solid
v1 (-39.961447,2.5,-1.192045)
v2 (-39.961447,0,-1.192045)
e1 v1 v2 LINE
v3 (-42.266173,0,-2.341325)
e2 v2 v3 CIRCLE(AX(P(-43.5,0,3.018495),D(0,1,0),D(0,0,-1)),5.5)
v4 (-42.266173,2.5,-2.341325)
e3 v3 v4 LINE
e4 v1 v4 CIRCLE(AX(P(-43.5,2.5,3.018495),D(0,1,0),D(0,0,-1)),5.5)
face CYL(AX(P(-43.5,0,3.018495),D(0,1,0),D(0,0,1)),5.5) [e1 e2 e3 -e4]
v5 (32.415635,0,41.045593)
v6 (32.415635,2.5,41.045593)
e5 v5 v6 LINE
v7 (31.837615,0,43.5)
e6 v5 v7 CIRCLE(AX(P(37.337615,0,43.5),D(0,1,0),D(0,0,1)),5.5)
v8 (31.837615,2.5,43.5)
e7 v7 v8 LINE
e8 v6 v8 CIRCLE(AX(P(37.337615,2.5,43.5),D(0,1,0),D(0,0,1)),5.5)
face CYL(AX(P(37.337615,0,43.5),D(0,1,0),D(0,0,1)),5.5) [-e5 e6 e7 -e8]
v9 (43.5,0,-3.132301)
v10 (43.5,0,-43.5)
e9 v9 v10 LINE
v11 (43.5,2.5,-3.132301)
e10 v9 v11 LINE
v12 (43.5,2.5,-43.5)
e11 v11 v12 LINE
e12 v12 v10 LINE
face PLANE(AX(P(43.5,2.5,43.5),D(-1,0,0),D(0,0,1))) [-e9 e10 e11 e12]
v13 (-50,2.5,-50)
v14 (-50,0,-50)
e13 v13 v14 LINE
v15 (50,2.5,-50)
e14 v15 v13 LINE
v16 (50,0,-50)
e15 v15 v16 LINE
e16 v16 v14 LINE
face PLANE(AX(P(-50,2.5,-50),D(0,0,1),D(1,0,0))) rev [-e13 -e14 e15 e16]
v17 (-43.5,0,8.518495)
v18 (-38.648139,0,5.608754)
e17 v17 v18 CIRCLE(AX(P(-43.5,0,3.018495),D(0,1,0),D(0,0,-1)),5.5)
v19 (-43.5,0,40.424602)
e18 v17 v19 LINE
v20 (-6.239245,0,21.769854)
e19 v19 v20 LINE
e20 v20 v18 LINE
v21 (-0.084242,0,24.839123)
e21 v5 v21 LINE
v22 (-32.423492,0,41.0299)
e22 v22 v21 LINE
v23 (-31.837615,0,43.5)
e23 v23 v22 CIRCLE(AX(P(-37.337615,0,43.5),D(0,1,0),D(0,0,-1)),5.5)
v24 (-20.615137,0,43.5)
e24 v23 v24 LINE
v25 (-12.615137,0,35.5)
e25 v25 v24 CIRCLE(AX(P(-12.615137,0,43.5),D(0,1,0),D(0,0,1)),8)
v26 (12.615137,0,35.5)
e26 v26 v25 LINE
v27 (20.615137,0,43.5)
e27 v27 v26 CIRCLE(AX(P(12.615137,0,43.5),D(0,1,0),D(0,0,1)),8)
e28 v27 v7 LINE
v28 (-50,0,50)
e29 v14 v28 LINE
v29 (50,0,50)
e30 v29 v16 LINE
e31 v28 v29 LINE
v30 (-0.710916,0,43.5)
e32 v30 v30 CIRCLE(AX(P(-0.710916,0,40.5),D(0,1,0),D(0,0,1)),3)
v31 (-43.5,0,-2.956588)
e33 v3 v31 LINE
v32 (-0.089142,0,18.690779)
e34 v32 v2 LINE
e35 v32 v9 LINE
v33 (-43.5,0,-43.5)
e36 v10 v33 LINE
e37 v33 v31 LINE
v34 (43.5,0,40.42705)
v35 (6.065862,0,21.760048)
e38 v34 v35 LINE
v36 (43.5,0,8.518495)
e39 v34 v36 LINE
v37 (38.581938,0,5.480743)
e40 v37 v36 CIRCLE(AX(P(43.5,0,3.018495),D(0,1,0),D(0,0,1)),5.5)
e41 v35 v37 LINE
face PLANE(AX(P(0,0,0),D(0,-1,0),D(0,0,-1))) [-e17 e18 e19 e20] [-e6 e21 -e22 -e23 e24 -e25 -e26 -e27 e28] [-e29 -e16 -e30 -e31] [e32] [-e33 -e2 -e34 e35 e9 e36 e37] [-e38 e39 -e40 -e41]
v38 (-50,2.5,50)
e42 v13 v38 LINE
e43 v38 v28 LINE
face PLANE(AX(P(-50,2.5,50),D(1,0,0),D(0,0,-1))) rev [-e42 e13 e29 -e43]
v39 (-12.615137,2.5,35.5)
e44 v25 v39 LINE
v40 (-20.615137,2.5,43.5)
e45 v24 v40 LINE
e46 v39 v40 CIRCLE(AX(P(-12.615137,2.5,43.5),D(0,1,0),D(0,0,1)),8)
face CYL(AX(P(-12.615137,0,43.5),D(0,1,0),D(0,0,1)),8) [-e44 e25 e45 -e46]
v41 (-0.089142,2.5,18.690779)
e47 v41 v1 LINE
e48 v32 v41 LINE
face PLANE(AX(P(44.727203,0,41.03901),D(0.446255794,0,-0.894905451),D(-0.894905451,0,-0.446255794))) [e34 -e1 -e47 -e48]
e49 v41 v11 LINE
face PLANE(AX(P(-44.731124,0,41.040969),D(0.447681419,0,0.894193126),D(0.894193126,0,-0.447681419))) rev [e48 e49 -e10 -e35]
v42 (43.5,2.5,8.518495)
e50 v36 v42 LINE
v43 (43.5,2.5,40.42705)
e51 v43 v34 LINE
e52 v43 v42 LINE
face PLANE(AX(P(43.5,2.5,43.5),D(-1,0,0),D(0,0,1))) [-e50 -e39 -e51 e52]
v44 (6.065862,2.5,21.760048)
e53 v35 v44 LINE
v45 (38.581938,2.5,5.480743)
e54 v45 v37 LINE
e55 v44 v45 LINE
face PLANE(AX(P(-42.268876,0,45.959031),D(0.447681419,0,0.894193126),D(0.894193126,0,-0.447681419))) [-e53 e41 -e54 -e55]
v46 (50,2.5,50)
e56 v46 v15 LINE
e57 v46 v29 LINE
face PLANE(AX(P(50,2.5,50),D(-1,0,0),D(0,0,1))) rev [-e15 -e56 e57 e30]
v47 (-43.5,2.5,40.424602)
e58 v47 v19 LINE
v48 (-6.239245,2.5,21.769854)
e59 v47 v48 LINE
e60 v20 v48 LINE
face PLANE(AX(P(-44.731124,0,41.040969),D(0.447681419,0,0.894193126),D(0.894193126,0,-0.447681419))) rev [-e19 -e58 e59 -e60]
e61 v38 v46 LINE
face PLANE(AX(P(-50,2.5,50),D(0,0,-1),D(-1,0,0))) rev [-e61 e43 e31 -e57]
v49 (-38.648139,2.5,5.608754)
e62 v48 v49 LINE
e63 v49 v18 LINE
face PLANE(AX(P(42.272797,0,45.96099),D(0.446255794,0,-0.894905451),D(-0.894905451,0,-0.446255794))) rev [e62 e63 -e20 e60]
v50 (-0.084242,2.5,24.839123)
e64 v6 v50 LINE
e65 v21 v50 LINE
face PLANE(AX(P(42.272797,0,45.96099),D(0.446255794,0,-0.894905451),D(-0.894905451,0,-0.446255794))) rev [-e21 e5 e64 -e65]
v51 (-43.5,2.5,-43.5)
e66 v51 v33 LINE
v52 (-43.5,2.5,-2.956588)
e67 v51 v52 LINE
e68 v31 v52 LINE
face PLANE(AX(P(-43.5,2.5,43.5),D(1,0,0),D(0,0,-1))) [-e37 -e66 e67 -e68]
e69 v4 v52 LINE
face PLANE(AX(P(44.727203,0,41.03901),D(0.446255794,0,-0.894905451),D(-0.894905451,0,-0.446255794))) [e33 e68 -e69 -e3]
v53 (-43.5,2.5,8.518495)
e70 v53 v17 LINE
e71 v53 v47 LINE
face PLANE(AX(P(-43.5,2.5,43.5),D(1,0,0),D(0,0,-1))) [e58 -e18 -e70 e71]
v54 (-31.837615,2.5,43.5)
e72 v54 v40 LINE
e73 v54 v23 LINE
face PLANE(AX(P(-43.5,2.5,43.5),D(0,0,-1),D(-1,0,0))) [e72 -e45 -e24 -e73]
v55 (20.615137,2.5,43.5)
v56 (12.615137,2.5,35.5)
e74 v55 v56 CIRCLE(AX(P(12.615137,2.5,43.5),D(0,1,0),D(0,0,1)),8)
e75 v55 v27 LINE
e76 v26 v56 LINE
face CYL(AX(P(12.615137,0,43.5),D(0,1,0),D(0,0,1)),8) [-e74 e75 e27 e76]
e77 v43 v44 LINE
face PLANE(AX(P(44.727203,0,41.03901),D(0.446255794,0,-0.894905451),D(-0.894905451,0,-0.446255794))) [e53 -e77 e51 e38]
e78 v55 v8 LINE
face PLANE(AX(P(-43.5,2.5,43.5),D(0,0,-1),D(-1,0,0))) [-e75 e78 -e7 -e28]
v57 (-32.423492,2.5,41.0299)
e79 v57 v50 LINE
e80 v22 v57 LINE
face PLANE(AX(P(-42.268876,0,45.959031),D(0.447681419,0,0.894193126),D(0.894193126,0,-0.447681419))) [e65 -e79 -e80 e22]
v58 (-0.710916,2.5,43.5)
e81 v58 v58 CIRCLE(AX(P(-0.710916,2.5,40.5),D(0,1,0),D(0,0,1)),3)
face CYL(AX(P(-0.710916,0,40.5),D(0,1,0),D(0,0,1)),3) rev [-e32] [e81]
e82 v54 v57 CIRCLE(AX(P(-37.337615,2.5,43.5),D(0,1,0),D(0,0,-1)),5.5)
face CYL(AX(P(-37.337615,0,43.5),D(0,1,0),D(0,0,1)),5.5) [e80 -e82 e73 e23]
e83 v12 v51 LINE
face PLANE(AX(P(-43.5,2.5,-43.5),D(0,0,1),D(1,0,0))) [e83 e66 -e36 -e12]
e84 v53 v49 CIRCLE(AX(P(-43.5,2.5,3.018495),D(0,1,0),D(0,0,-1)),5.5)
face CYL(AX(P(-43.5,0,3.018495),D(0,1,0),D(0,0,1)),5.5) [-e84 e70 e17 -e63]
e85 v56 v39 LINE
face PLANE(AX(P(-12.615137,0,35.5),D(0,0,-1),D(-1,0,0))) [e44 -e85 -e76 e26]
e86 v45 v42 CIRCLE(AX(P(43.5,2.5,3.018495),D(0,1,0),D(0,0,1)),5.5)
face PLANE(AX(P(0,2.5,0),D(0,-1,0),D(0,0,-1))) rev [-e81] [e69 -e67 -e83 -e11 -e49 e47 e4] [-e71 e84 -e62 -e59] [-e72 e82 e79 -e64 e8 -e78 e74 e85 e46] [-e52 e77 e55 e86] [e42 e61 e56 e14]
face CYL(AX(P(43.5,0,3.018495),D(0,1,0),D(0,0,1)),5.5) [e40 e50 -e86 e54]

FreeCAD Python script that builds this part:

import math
import FreeCAD as App
import Part
import Sketcher
from FreeCAD import Vector

doc = App.newDocument("Part")
params = doc.addObject("Spreadsheet::Sheet", "Params")
for row, (alias, value) in enumerate([
    ("sketch1_width", "100 mm"),
    ("sketch1_width2", "87 mm"),
    ("pad1_length", "2.5 mm"),
    ("sketch2_radius", "8 mm"),
    ("pad2_length", "2.5 mm"),
    ("pocket1_length", "2.5 mm"),
    ("sketch4_diameter", "6 mm"),
    ("pocket2_length", "2.5 mm"),
    ("sketch5_length", "5.5 mm"),
    ("pad3_length", "2.5 mm"),
    ("sketch6_diameter", "11 mm"),
    ("pad4_length", "2.5 mm"),
], start=1):
    params.set(f"A{row}", alias)
    params.set(f"B{row}", "=" + value)
    params.setAlias(f"B{row}", alias)

body = doc.addObject("PartDesign::Body", "Body")

# Sketch on XZ plane
sketch1 = doc.addObject("Sketcher::SketchObject", "Sketch")
body.addObject(sketch1)
sketch1.AttachmentSupport = (doc.XZ_Plane, [""])
sketch1.MapMode = "FlatFace"
sketch1.addGeometry(Part.LineSegment(Vector(-50, -50, 0), Vector(-50, 50, 0)), False)
sketch1.addGeometry(Part.LineSegment(Vector(-50, 50, 0), Vector(50, 50, 0)), False)
sketch1.addGeometry(Part.LineSegment(Vector(50, 50, 0), Vector(50, -50, 0)), False)
sketch1.addGeometry(Part.LineSegment(Vector(50, -50, 0), Vector(-50, -50, 0)), False)
sketch1.addGeometry(Part.LineSegment(Vector(43.5, 43.5, 0), Vector(-43.5, 43.5, 0)), False)
sketch1.addGeometry(Part.LineSegment(Vector(-43.5, 43.5, 0), Vector(-43.5, -43.5, 0)), False)
sketch1.addGeometry(Part.LineSegment(Vector(-43.5, -43.5, 0), Vector(43.5, -43.5, 0)), False)
sketch1.addGeometry(Part.LineSegment(Vector(43.5, -43.5, 0), Vector(43.5, 43.5, 0)), False)
sketch1.addConstraint(Sketcher.Constraint("Coincident", 0, 2, 1, 1))
sketch1.addConstraint(Sketcher.Constraint("Coincident", 1, 2, 2, 1))
sketch1.addConstraint(Sketcher.Constraint("Coincident", 2, 2, 3, 1))
sketch1.addConstraint(Sketcher.Constraint("Coincident", 3, 2, 0, 1))
sketch1.addConstraint(Sketcher.Constraint("Coincident", 4, 2, 5, 1))
sketch1.addConstraint(Sketcher.Constraint("Coincident", 5, 2, 6, 1))
sketch1.addConstraint(Sketcher.Constraint("Coincident", 6, 2, 7, 1))
sketch1.addConstraint(Sketcher.Constraint("Coincident", 7, 2, 4, 1))
sketch1.addConstraint(Sketcher.Constraint("Vertical", 0))
sketch1.addConstraint(Sketcher.Constraint("Horizontal", 1))
sketch1.addConstraint(Sketcher.Constraint("Vertical", 2))
sketch1.addConstraint(Sketcher.Constraint("Horizontal", 3))
sketch1.addConstraint(Sketcher.Constraint("Horizontal", 4))
sketch1.addConstraint(Sketcher.Constraint("Vertical", 5))
sketch1.addConstraint(Sketcher.Constraint("Horizontal", 6))
sketch1.addConstraint(Sketcher.Constraint("Vertical", 7))
sketch1.addConstraint(Sketcher.Constraint("Symmetric", 0, 2, 2, 2, -1, 1))
sketch1.addConstraint(Sketcher.Constraint("Symmetric", 4, 2, 6, 2, -1, 1))
sketch1.addConstraint(Sketcher.Constraint("Equal", 3, 0))
sketch1.addConstraint(Sketcher.Constraint("Equal", 6, 5))
sketch1.addConstraint(Sketcher.Constraint("DistanceX", 1, 1, 1, 2, 100.0))
sketch1.addConstraint(Sketcher.Constraint("DistanceX", 4, 2, 4, 1, 87.0))
sketch1.setExpression("Constraints[20]", "Params.sketch1_width")
sketch1.setExpression("Constraints[21]", "Params.sketch1_width2")
pad1 = doc.addObject("PartDesign::Pad", "Pad")
body.addObject(pad1)
pad1.Profile = sketch1
pad1.setExpression("Length", "Params.pad1_length")
pad1.Reversed = True

# Sketch on XZ plane
sketch2 = doc.addObject("Sketcher::SketchObject", "Sketch001")
body.addObject(sketch2)
sketch2.AttachmentSupport = (doc.XZ_Plane, [""])
sketch2.MapMode = "FlatFace"
sketch2.AttachmentOffset = App.Placement(Vector(0, 0, -2.5), App.Rotation())
sketch2.addGeometry(Part.LineSegment(Vector(12.615137, 35.5, 0), Vector(-12.615137, 35.5, 0)), False)
sketch2.addGeometry(Part.ArcOfCircle(Part.Circle(Vector(-12.615137, 43.5, 0), Vector(0, 0, 1), 8), math.radians(90), math.radians(270)), False)
sketch2.addGeometry(Part.LineSegment(Vector(-12.615137, 51.5, 0), Vector(12.615137, 51.5, 0)), False)
sketch2.addGeometry(Part.ArcOfCircle(Part.Circle(Vector(12.615137, 43.5, 0), Vector(0, 0, 1), 8), math.radians(-90), math.radians(90)), False)
sketch2.addConstraint(Sketcher.Constraint("Tangent", 0, 2, 1, 2))
sketch2.addConstraint(Sketcher.Constraint("Tangent", 1, 1, 2, 1))
sketch2.addConstraint(Sketcher.Constraint("Tangent", 2, 2, 3, 2))
sketch2.addConstraint(Sketcher.Constraint("Tangent", 3, 1, 0, 1))
sketch2.addConstraint(Sketcher.Constraint("Horizontal", 0))
sketch2.addConstraint(Sketcher.Constraint("Horizontal", 2))
sketch2.addConstraint(Sketcher.Constraint("Radius", 1, 8.0))
sketch2.addConstraint(Sketcher.Constraint("DistanceY", -1, 1, 1, 3, 43.5))
sketch2.addConstraint(Sketcher.Constraint("DistanceX", 0, 2, 0, 1, 25.230274))
sketch2.addConstraint(Sketcher.Constraint("DistanceX", 1, 3, -1, 1, 12.615137))
sketch2.setExpression("Constraints[6]", "Params.sketch2_radius")
pad2 = doc.addObject("PartDesign::Pad", "Pad001")
body.addObject(pad2)
pad2.Profile = sketch2
pad2.setExpression("Length", "Params.pad2_length")

# Sketch on XZ plane
sketch3 = doc.addObject("Sketcher::SketchObject", "Sketch002")
body.addObject(sketch3)
sketch3.AttachmentSupport = (doc.XZ_Plane, [""])
sketch3.MapMode = "FlatFace"
sketch3.AttachmentOffset = App.Placement(Vector(0, 0, -2.5), App.Rotation())
sketch3.addGeometry(Part.LineSegment(Vector(-27.044883, 50, 0), Vector(-27.044883, 57.135478, 0)), False)
sketch3.addGeometry(Part.LineSegment(Vector(-27.044883, 57.135478, 0), Vector(25.239885, 57.135478, 0)), False)
sketch3.addGeometry(Part.LineSegment(Vector(25.239885, 57.135478, 0), Vector(25.239885, 50, 0)), False)
sketch3.addGeometry(Part.LineSegment(Vector(25.239885, 50, 0), Vector(-27.044883, 50, 0)), False)
sketch3.addConstraint(Sketcher.Constraint("Coincident", 0, 2, 1, 1))
sketch3.addConstraint(Sketcher.Constraint("Coincident", 1, 2, 2, 1))
sketch3.addConstraint(Sketcher.Constraint("Coincident", 2, 2, 3, 1))
sketch3.addConstraint(Sketcher.Constraint("Coincident", 3, 2, 0, 1))
sketch3.addConstraint(Sketcher.Constraint("Vertical", 0))
sketch3.addConstraint(Sketcher.Constraint("Horizontal", 1))
sketch3.addConstraint(Sketcher.Constraint("Vertical", 2))
sketch3.addConstraint(Sketcher.Constraint("Horizontal", 3))
sketch3.addConstraint(Sketcher.Constraint("DistanceY", -1, 1, 2, 2, 50.0))
sketch3.addConstraint(Sketcher.Constraint("DistanceY", 0, 1, 0, 2, 7.135478))
sketch3.addConstraint(Sketcher.Constraint("DistanceX", 1, 1, 1, 2, 52.284767))
sketch3.addConstraint(Sketcher.Constraint("DistanceX", 0, 2, -1, 1, 27.044883))
pocket1 = doc.addObject("PartDesign::Pocket", "Pocket")
body.addObject(pocket1)
pocket1.Profile = sketch3
pocket1.setExpression("Length", "Params.pocket1_length")
pocket1.Reversed = True

# Sketch on XZ plane
sketch4 = doc.addObject("Sketcher::SketchObject", "Sketch003")
body.addObject(sketch4)
sketch4.AttachmentSupport = (doc.XZ_Plane, [""])
sketch4.MapMode = "FlatFace"
sketch4.AttachmentOffset = App.Placement(Vector(0, 0, -2.5), App.Rotation())
sketch4.addGeometry(Part.Circle(Vector(-0.710916, 40.5, 0), Vector(0, 0, 1), 3), False)
sketch4.addConstraint(Sketcher.Constraint("Diameter", 0, 6.0))
sketch4.addConstraint(Sketcher.Constraint("DistanceY", -1, 1, 0, 3, 40.5))
sketch4.addConstraint(Sketcher.Constraint("DistanceX", 0, 3, -1, 1, 0.710916))
sketch4.setExpression("Constraints[0]", "Params.sketch4_diameter")
pocket2 = doc.addObject("PartDesign::Pocket", "Pocket001")
body.addObject(pocket2)
pocket2.Profile = sketch4
pocket2.setExpression("Length", "Params.pocket2_length")
pocket2.Reversed = True

# Sketch on XZ plane
sketch5 = doc.addObject("Sketcher::SketchObject", "Sketch004")
body.addObject(sketch5)
sketch5.AttachmentSupport = (doc.XZ_Plane, [""])
sketch5.MapMode = "FlatFace"
sketch5.AttachmentOffset = App.Placement(Vector(0, 0, -2.5), App.Rotation())
sketch5.addGeometry(Part.LineSegment(Vector(-44.731124, 41.040969, 0), Vector(-42.268876, 45.959031, 0)), False)
sketch5.addGeometry(Part.LineSegment(Vector(-42.268876, 45.959031, 0), Vector(-0.084242, 24.839123, 0)), False)
sketch5.addGeometry(Part.LineSegment(Vector(-0.084242, 24.839123, 0), Vector(42.272797, 45.96099, 0)), False)
sketch5.addGeometry(Part.LineSegment(Vector(42.272797, 45.96099, 0), Vector(44.727203, 41.03901, 0)), False)
sketch5.addGeometry(Part.LineSegment(Vector(44.727203, 41.03901, 0), Vector(6.065862, 21.760048, 0)), False)
sketch5.addGeometry(Part.LineSegment(Vector(6.065862, 21.760048, 0), Vector(48.231096, 0.649853, 0)), False)
sketch5.addGeometry(Part.LineSegment(Vector(48.231096, 0.649853, 0), Vector(45.768848, -4.268209, 0)), False)
sketch5.addGeometry(Part.LineSegment(Vector(45.768848, -4.268209, 0), Vector(-0.089142, 18.690779, 0)), False)
sketch5.addGeometry(Part.LineSegment(Vector(-0.089142, 18.690779, 0), Vector(-46.134207, -4.270168, 0)), False)
sketch5.addGeometry(Part.LineSegment(Vector(-46.134207, -4.270168, 0), Vector(-48.588614, 0.651812, 0)), False)
sketch5.addGeometry(Part.LineSegment(Vector(-48.588614, 0.651812, 0), Vector(-6.239245, 21.769854, 0)), False)
sketch5.addGeometry(Part.LineSegment(Vector(-6.239245, 21.769854, 0), Vector(-44.731124, 41.040969, 0)), False)
sketch5.addConstraint(Sketcher.Constraint("Coincident", 0, 2, 1, 1))
sketch5.addConstraint(Sketcher.Constraint("Coincident", 1, 2, 2, 1))
sketch5.addConstraint(Sketcher.Constraint("Coincident", 2, 2, 3, 1))
sketch5.addConstraint(Sketcher.Constraint("Coincident", 3, 2, 4, 1))
sketch5.addConstraint(Sketcher.Constraint("Coincident", 4, 2, 5, 1))
sketch5.addConstraint(Sketcher.Constraint("Coincident", 5, 2, 6, 1))
sketch5.addConstraint(Sketcher.Constraint("Coincident", 6, 2, 7, 1))
sketch5.addConstraint(Sketcher.Constraint("Coincident", 7, 2, 8, 1))
sketch5.addConstraint(Sketcher.Constraint("Coincident", 8, 2, 9, 1))
sketch5.addConstraint(Sketcher.Constraint("Coincident", 9, 2, 10, 1))
sketch5.addConstraint(Sketcher.Constraint("Coincident", 10, 2, 11, 1))
sketch5.addConstraint(Sketcher.Constraint("Coincident", 11, 2, 0, 1))
sketch5.addConstraint(Sketcher.Constraint("Perpendicular", 0, 1))
sketch5.addConstraint(Sketcher.Constraint("Perpendicular", 2, 3))
sketch5.addConstraint(Sketcher.Constraint("Perpendicular", 3, 4))
sketch5.addConstraint(Sketcher.Constraint("Parallel", 1, 5))
sketch5.addConstraint(Sketcher.Constraint("Perpendicular", 5, 6))
sketch5.addConstraint(Sketcher.Constraint("Perpendicular", 6, 7))
sketch5.addConstraint(Sketcher.Constraint("Parallel", 4, 8))
sketch5.addConstraint(Sketcher.Constraint("Perpendicular", 8, 9))
sketch5.addConstraint(Sketcher.Constraint("Perpendicular", 9, 10))
sketch5.addConstraint(Sketcher.Constraint("Parallel", 7, 11))
sketch5.addConstraint(Sketcher.Constraint("Equal", 0, 3))
sketch5.addConstraint(Sketcher.Constraint("Equal", 3, 6))
sketch5.addConstraint(Sketcher.Constraint("Equal", 6, 9))
sketch5.addConstraint(Sketcher.Constraint("Distance", 0, 5.5))
sketch5.addConstraint(Sketcher.Constraint("Distance", 1, 47.1762))
sketch5.addConstraint(Sketcher.Constraint("Distance", 2, 47.331301))
sketch5.addConstraint(Sketcher.Constraint("DistanceX", 2, 2, 5, 2, 5.958299))
sketch5.addConstraint(Sketcher.Constraint("DistanceY", 6, 2, 2, 2, 50.229199))
sketch5.addConstraint(Sketcher.Constraint("DistanceX", 7, 2, 1, 2, 0.004899))
sketch5.addConstraint(Sketcher.Constraint("DistanceY", 8, 2, 0, 2, 50.229199))
sketch5.addConstraint(Sketcher.Constraint("Distance", 7, 51.284212))
sketch5.addConstraint(Sketcher.Constraint("Distance", 10, 47.322729))
sketch5.addConstraint(Sketcher.Constraint("DistanceY", -1, 1, 0, 2, 45.959031))
sketch5.addConstraint(Sketcher.Constraint("DistanceX", -1, 1, 4, 2, 6.065862))
sketch5.setExpression("Constraints[25]", "Params.sketch5_length")
pad3 = doc.addObject("PartDesign::Pad", "Pad002")
body.addObject(pad3)
pad3.Profile = sketch5
pad3.setExpression("Length", "Params.pad3_length")

# Sketch on XZ plane
sketch6 = doc.addObject("Sketcher::SketchObject", "Sketch005")
body.addObject(sketch6)
sketch6.AttachmentSupport = (doc.XZ_Plane, [""])
sketch6.MapMode = "FlatFace"
sketch6.AttachmentOffset = App.Placement(Vector(0, 0, -2.5), App.Rotation())
sketch6.addGeometry(Part.Circle(Vector(37.337615, 43.5, 0), Vector(0, 0, 1), 5.5), False)
sketch6.addGeometry(Part.Circle(Vector(43.5, 3.018495, 0), Vector(0, 0, 1), 5.5), False)
sketch6.addGeometry(Part.Circle(Vector(-37.337615, 43.5, 0), Vector(0, 0, 1), 5.5), False)
sketch6.addGeometry(Part.Circle(Vector(-43.5, 3.018495, 0), Vector(0, 0, 1), 5.5), False)
sketch6.addConstraint(Sketcher.Constraint("Equal", 0, 1))
sketch6.addConstraint(Sketcher.Constraint("Equal", 1, 2))
sketch6.addConstraint(Sketcher.Constraint("Equal", 2, 3))
sketch6.addConstraint(Sketcher.Constraint("Symmetric", 0, 3, 2, 3, -2))
sketch6.addConstraint(Sketcher.Constraint("Symmetric", 1, 3, 3, 3, -2))
sketch6.addConstraint(Sketcher.Constraint("Diameter", 0, 11.0))
sketch6.addConstraint(Sketcher.Constraint("DistanceX", 3, 3, 1, 3, 87.0))
sketch6.addConstraint(Sketcher.Constraint("DistanceY", -1, 1, 0, 3, 43.5))
sketch6.addConstraint(Sketcher.Constraint("DistanceX", 2, 3, 0, 3, 74.67523))
sketch6.addConstraint(Sketcher.Constraint("DistanceY", -1, 1, 1, 3, 3.018495))
sketch6.setExpression("Constraints[5]", "Params.sketch6_diameter")
pad4 = doc.addObject("PartDesign::Pad", "Pad003")
body.addObject(pad4)
pad4.Profile = sketch6
pad4.setExpression("Length", "Params.pad4_length")

doc.recompute()
